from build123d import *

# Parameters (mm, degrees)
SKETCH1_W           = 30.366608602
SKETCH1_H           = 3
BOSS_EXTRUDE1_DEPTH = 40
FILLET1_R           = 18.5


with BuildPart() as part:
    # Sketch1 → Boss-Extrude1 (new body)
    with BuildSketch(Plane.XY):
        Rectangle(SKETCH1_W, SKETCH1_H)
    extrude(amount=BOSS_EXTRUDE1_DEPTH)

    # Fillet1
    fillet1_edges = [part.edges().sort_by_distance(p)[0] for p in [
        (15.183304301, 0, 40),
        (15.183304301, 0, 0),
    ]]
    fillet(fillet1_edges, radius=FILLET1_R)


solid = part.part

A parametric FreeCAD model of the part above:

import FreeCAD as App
import Part
import Sketcher


def edges_at(feature, points):
    """Names of the edges that pass closest to the given points."""
    edges = feature.Shape.Edges
    near = lambda p: min(range(len(edges)), key=lambda i: edges[i].distToShape(Part.Vertex(*p))[0])
    return sorted({f"Edge{near(p) + 1}" for p in points})

doc = App.newDocument("Part")
body = doc.addObject("PartDesign::Body", "Body")

sketch1 = body.newObject("Sketcher::SketchObject", "Sketch")
sketch1.AttachmentSupport = (doc.getObject("XY_Plane"), [""])
sketch1.MapMode = "FlatFace"
sketch1.addGeometry([
    Part.LineSegment(App.Vector(-15.2, 1.5, 0), App.Vector(-15.2, -1.5, 0)),
    Part.LineSegment(App.Vector(-15.2, -1.5, 0), App.Vector(15.2, -1.5, 0)),
    Part.LineSegment(App.Vector(15.2, -1.5, 0), App.Vector(15.2, 1.5, 0)),
    Part.LineSegment(App.Vector(15.2, 1.5, 0), App.Vector(-15.2, 1.5, 0)),
], False)
sketch1.addConstraint([
    Sketcher.Constraint("Coincident", 0, 2, 1, 1),
    Sketcher.Constraint("Coincident", 1, 2, 2, 1),
    Sketcher.Constraint("Coincident", 2, 2, 3, 1),
    Sketcher.Constraint("Coincident", 3, 2, 0, 1),
    Sketcher.Constraint("Vertical", 0),
    Sketcher.Constraint("Horizontal", 1),
    Sketcher.Constraint("Vertical", 2),
    Sketcher.Constraint("Horizontal", 3),
    Sketcher.Constraint("Symmetric", 0, 2, 2, 2, -1, 1),
    Sketcher.Constraint("DistanceY", 0, 2, 0, 1, 3.0),
    Sketcher.Constraint("DistanceX", 1, 1, 1, 2, 30.366609),
])
pad1 = body.newObject("PartDesign::Pad", "Pad")
pad1.Profile = sketch1
pad1.Length = 40
doc.recompute()

fillet = body.newObject("PartDesign::Fillet", "Fillet")
fillet.Base = (pad1, edges_at(pad1, [(15.183, 0, 40), (15.183, 0, 0)]))
fillet.Radius = 18.5

doc.recompute()
